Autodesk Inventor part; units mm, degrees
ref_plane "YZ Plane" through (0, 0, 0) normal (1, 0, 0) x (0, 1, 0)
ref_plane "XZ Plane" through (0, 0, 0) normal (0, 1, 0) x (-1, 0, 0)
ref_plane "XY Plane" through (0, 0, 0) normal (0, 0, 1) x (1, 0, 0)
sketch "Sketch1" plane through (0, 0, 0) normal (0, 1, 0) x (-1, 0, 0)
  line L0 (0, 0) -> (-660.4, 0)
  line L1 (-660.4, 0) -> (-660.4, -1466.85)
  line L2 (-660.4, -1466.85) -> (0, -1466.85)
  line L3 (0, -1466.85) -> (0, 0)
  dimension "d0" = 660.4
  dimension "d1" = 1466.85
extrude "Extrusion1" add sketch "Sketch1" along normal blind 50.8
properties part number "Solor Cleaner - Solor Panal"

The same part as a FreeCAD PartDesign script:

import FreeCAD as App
import Part
import Sketcher

V = App.Vector
Q = App.Units.Quantity

doc = App.newDocument("Part")
body = doc.addObject("PartDesign::Body", "Body")

# Sketch on XZ plane
sketch1 = body.newObject("Sketcher::SketchObject", "Sketch")
sketch1.AttachmentSupport = (doc.getObject("XZ_Plane"), [""])
sketch1.MapMode = "FlatFace"
sketch1.addGeometry(Part.LineSegment(V(0, -1467, 0), V(0, 0, 0)), False)
sketch1.addGeometry(Part.LineSegment(V(0, 0, 0), V(660, 0, 0)), False)
sketch1.addGeometry(Part.LineSegment(V(660, 0, 0), V(660, -1467, 0)), False)
sketch1.addGeometry(Part.LineSegment(V(660, -1467, 0), V(0, -1467, 0)), False)
sketch1.addConstraint(Sketcher.Constraint("Coincident", 0, 2, 1, 1))
sketch1.addConstraint(Sketcher.Constraint("Coincident", 1, 2, 2, 1))
sketch1.addConstraint(Sketcher.Constraint("Coincident", 2, 2, 3, 1))
sketch1.addConstraint(Sketcher.Constraint("Coincident", 3, 2, 0, 1))
sketch1.addConstraint(Sketcher.Constraint("Vertical", 0))
sketch1.addConstraint(Sketcher.Constraint("Horizontal", 1))
sketch1.addConstraint(Sketcher.Constraint("Vertical", 2))
sketch1.addConstraint(Sketcher.Constraint("Horizontal", 3))
sketch1.addConstraint(Sketcher.Constraint("Coincident", 0, 2, -1, 1))
sketch1.addConstraint(Sketcher.Constraint("DistanceX", 1, 1, 1, 2, Q("26 in")))
sketch1.addConstraint(Sketcher.Constraint("DistanceY", 0, 1, 0, 2, Q("57.75 in")))
pad1 = body.newObject("PartDesign::Pad", "Pad")
pad1.Profile = sketch1
pad1.Length = Q("2 in")
pad1.Reversed = True

doc.recompute()
